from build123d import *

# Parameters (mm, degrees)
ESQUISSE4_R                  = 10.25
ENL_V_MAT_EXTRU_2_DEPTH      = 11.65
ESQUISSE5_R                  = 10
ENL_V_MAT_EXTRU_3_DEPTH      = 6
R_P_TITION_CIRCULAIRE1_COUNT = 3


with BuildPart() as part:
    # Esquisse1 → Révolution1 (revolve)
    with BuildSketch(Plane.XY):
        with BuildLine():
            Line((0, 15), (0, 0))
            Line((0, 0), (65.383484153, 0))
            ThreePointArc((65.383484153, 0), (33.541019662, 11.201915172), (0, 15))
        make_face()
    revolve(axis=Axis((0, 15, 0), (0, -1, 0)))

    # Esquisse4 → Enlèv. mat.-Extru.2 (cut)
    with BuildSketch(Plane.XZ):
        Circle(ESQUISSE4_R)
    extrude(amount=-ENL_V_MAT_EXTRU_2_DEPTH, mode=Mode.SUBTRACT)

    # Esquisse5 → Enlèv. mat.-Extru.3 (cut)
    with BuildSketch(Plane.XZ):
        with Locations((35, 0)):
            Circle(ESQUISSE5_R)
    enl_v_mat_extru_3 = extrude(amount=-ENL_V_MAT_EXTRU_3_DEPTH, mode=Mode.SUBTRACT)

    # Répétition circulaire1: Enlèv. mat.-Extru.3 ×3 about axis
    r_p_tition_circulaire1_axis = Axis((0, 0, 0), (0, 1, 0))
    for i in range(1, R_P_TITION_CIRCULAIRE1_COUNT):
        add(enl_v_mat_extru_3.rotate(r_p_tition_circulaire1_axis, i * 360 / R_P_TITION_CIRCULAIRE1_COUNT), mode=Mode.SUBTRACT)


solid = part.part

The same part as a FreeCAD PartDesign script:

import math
import FreeCAD as App
import Part
import Sketcher

V = App.Vector

doc = App.newDocument("Part")
params = doc.addObject("Spreadsheet::Sheet", "Params")
for row, (alias, value) in enumerate([
    ("sketch1_radius", "150 mm"),
    ("sketch1_height", "15 mm"),
    ("revolution_angle", "360 deg"),
    ("sketch2_diameter", "20.5 mm"),
    ("pocket1_length", "11.65 mm"),
    ("sketch3_diameter", "20 mm"),
    ("pocket2_length", "6 mm"),
], start=1):
    params.set(f"A{row}", alias)
    params.set(f"B{row}", "=" + value)
    params.setAlias(f"B{row}", alias)

body = doc.addObject("PartDesign::Body", "Body")

# Sketch on XY plane
sketch1 = doc.addObject("Sketcher::SketchObject", "Sketch")
body.addObject(sketch1)
sketch1.AttachmentSupport = (doc.XY_Plane, [""])
sketch1.MapMode = "FlatFace"
sketch1.addGeometry([
    Part.LineSegment(V(0, 15, 0), V(0, 0, 0)),
    Part.LineSegment(V(0, 0, 0), V(65, 0, 0)),
    Part.ArcOfCircle(Part.Circle(V(0, -135, 0), V(0, 0, 1), 150), math.radians(64), math.radians(90)),
], False)
sketch1.addConstraint([
    Sketcher.Constraint("Coincident", 0, 2, 1, 1),
    Sketcher.Constraint("Coincident", 1, 2, 2, 1),
    Sketcher.Constraint("Coincident", 2, 2, 0, 1),
    Sketcher.Constraint("Vertical", 0),
    Sketcher.Constraint("Horizontal", 1),
    Sketcher.Constraint("Coincident", 0, 2, -1, 1),
    Sketcher.Constraint("PointOnObject", 2, 3, -2),
    Sketcher.Constraint("Radius", 2, 150.0),
    Sketcher.Constraint("DistanceY", 0, 2, 0, 1, 15.0),
])
sketch1.setExpression("Constraints[7]", "Params.sketch1_radius")
sketch1.setExpression("Constraints[8]", "Params.sketch1_height")
revolution = doc.addObject("PartDesign::Revolution", "Revolution")
body.addObject(revolution)
revolution.Profile = sketch1
revolution.ReferenceAxis = (sketch1, ["V_Axis"])
revolution.setExpression("Angle", "Params.revolution_angle")

# Sketch on XZ plane
sketch2 = doc.addObject("Sketcher::SketchObject", "Sketch001")
body.addObject(sketch2)
sketch2.AttachmentSupport = (doc.XZ_Plane, [""])
sketch2.MapMode = "FlatFace"
sketch2.addGeometry(Part.Circle(V(0, 0, 0), V(0, 0, 1), 10), False)
sketch2.addConstraint([
    Sketcher.Constraint("Coincident", 0, 3, -1, 1),
    Sketcher.Constraint("Diameter", 0, 20.5),
])
sketch2.setExpression("Constraints[1]", "Params.sketch2_diameter")
pocket1 = doc.addObject("PartDesign::Pocket", "Pocket")
body.addObject(pocket1)
pocket1.Profile = sketch2
pocket1.setExpression("Length", "Params.pocket1_length")

# Sketch on XZ plane
sketch3 = doc.addObject("Sketcher::SketchObject", "Sketch002")
body.addObject(sketch3)
sketch3.AttachmentSupport = (doc.XZ_Plane, [""])
sketch3.MapMode = "FlatFace"
sketch3.addGeometry(Part.Circle(V(35, 0, 0), V(0, 0, 1), 10), False)
sketch3.addConstraint([
    Sketcher.Constraint("PointOnObject", 0, 3, -1),
    Sketcher.Constraint("Diameter", 0, 20.0),
    Sketcher.Constraint("DistanceX", -1, 1, 0, 3, 35.0),
])
sketch3.setExpression("Constraints[1]", "Params.sketch3_diameter")
pocket2 = doc.addObject("PartDesign::Pocket", "Pocket001")
body.addObject(pocket2)
pocket2.Profile = sketch3
pocket2.setExpression("Length", "Params.pocket2_length")
doc.recompute()

polarpattern = doc.addObject("PartDesign::PolarPattern", "PolarPattern")
body.addObject(polarpattern)
polarpattern.Originals = [pocket2]
polarpattern.Axis = (doc.Y_Axis, [""])
polarpattern.Angle = 360
polarpattern.Occurrences = 3
body.Tip = polarpattern

doc.recompute()
